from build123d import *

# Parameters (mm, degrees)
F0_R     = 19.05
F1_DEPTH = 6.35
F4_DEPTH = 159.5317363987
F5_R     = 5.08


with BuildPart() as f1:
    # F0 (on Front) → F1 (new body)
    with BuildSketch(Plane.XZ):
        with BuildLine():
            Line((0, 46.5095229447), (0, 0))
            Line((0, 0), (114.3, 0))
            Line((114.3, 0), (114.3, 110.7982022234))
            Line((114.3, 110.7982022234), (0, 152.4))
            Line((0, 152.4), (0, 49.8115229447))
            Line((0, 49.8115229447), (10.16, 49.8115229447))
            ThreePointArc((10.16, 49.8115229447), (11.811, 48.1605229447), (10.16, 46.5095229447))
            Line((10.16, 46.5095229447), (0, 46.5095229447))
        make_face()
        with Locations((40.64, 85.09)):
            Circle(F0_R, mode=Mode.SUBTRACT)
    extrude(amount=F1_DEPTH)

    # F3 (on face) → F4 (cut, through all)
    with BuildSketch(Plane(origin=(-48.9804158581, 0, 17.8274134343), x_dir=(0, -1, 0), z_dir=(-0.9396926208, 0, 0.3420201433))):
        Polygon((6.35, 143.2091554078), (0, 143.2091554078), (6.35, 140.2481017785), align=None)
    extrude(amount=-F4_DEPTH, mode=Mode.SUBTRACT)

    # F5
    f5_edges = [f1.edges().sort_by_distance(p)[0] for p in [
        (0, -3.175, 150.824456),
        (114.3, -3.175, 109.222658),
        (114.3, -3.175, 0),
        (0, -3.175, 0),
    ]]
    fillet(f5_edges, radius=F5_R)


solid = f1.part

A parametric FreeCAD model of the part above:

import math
import FreeCAD as App
import Part
import Sketcher

V = App.Vector
Q = App.Units.Quantity


def edges_at(feature, points):
    """Names of the edges that pass closest to the given points."""
    edges = feature.Shape.Edges
    near = lambda p: min(range(len(edges)), key=lambda i: edges[i].distToShape(Part.Vertex(*p))[0])
    return sorted({f"Edge{near(p) + 1}" for p in points})


def add_polygon(sketch, points):
    """Adds a closed chain of lines whose ends are joined by coincident constraints."""
    first, n = sketch.GeometryCount, len(points)
    for a, b in zip(points, points[1:] + points[:1]):
        sketch.addGeometry(Part.LineSegment(App.Vector(*a, 0), App.Vector(*b, 0)), False)
    for i in range(n):
        sketch.addConstraint(Sketcher.Constraint("Coincident", first + i, 2, first + (i + 1) % n, 1))

doc = App.newDocument("Part")
body = doc.addObject("PartDesign::Body", "Body")

sketch1 = doc.addObject("Sketcher::SketchObject", "Sketch")
body.addObject(sketch1)
sketch1.AttachmentSupport = (doc.XZ_Plane, [""])
sketch1.MapMode = "FlatFace"
sketch1.addGeometry(Part.LineSegment(V(0, 46.5, 0), V(0, 0, 0)), False)
sketch1.addGeometry(Part.LineSegment(V(0, 0, 0), V(114.3, 0, 0)), False)
sketch1.addGeometry(Part.LineSegment(V(114.3, 0, 0), V(114.3, 110.8, 0)), False)
sketch1.addGeometry(Part.LineSegment(V(114.3, 110.8, 0), V(0, 152.4, 0)), False)
sketch1.addGeometry(Part.LineSegment(V(0, 152.4, 0), V(0, 49.8, 0)), False)
sketch1.addGeometry(Part.LineSegment(V(0, 49.8, 0), V(10.2, 49.8, 0)), False)
sketch1.addGeometry(Part.ArcOfCircle(Part.Circle(V(10.2, 48.2, 0), V(0, 0, 1), 1.7), math.radians(-90), math.radians(90)), False)
sketch1.addGeometry(Part.LineSegment(V(10.2, 46.5, 0), V(0, 46.5, 0)), False)
sketch1.addGeometry(Part.Circle(V(40.6, 85.1, 0), V(0, 0, 1), 19.1), False)
sketch1.addConstraint(Sketcher.Constraint("Coincident", 0, 2, 1, 1))
sketch1.addConstraint(Sketcher.Constraint("Coincident", 1, 2, 2, 1))
sketch1.addConstraint(Sketcher.Constraint("Coincident", 2, 2, 3, 1))
sketch1.addConstraint(Sketcher.Constraint("Coincident", 3, 2, 4, 1))
sketch1.addConstraint(Sketcher.Constraint("Coincident", 4, 2, 5, 1))
sketch1.addConstraint(Sketcher.Constraint("Tangent", 5, 2, 6, 2))
sketch1.addConstraint(Sketcher.Constraint("Tangent", 6, 1, 7, 1))
sketch1.addConstraint(Sketcher.Constraint("Coincident", 7, 2, 0, 1))
sketch1.addConstraint(Sketcher.Constraint("Vertical", 0))
sketch1.addConstraint(Sketcher.Constraint("Horizontal", 1))
sketch1.addConstraint(Sketcher.Constraint("Vertical", 2))
sketch1.addConstraint(Sketcher.Constraint("Vertical", 4))
sketch1.addConstraint(Sketcher.Constraint("Horizontal", 5))
sketch1.addConstraint(Sketcher.Constraint("Horizontal", 7))
sketch1.addConstraint(Sketcher.Constraint("Coincident", 0, 2, -1, 1))
sketch1.addConstraint(Sketcher.Constraint("PointOnObject", 3, 2, -2))
sketch1.addConstraint(Sketcher.Constraint("Diameter", 8, Q("1.5 in")))
sketch1.addConstraint(Sketcher.Constraint("DistanceX", 1, 1, 1, 2, Q("4.5 in")))
sketch1.addConstraint(Sketcher.Constraint("DistanceX", 5, 1, 5, 2, Q("0.4 in")))
sketch1.addConstraint(Sketcher.Constraint("DistanceY", -1, 1, 3, 2, Q("6 in")))
sketch1.addConstraint(Sketcher.Constraint("Angle", 3, Q("160 deg")))
sketch1.addConstraint(Sketcher.Constraint("Radius", 6, Q("0.065 in")))
sketch1.addConstraint(Sketcher.Constraint("DistanceX", -1, 1, 8, 3, Q("1.6 in")))
sketch1.addConstraint(Sketcher.Constraint("DistanceY", -1, 1, 8, 3, Q("3.35 in")))
sketch1.addConstraint(Sketcher.Constraint("DistanceY", 0, 2, 0, 1, Q("46.509523 mm")))
pad1 = doc.addObject("PartDesign::Pad", "Pad")
body.addObject(pad1)
pad1.Profile = sketch1
pad1.Length = Q("0.25 in")

sketch2 = doc.addObject("Sketcher::SketchObject", "Sketch001")
body.addObject(sketch2)
sketch2.Placement = App.Placement(V(-48.980416, 0, 17.827413), App.Rotation(V(0, -1, 0), V(0.342020143, 0, 0.939692621), V(-0.939692621, 0, 0.342020143), "ZXY"))
add_polygon(sketch2, [(6.3, 143.2), (0, 143.2), (6.3, 140.2)])
sketch2.addConstraint(Sketcher.Constraint("Horizontal", 0))
sketch2.addConstraint(Sketcher.Constraint("Vertical", 2))
sketch2.addConstraint(Sketcher.Constraint("PointOnObject", 0, 2, -2))
sketch2.addConstraint(Sketcher.Constraint("Angle", 1, Q("-25 deg")))
sketch2.addConstraint(Sketcher.Constraint("DistanceX", 0, 2, 0, 1, Q("0.25 in")))
sketch2.addConstraint(Sketcher.Constraint("DistanceY", -1, 1, 1, 2, Q("140.248102 mm")))
pocket1 = doc.addObject("PartDesign::Pocket", "Pocket")
body.addObject(pocket1)
pocket1.Profile = sketch2
pocket1.Type = "ThroughAll"
doc.recompute()

fillet = doc.addObject("PartDesign::Fillet", "Fillet")
body.addObject(fillet)
fillet.Base = (pocket1, edges_at(pocket1, [
    (0, -3.175, 150.824),
    (114.3, -3.175, 109.223),
    (114.3, -3.175, 0),
    (0, -3.175, 0),
]))
fillet.Radius = Q("0.2 in")

doc.recompute()
